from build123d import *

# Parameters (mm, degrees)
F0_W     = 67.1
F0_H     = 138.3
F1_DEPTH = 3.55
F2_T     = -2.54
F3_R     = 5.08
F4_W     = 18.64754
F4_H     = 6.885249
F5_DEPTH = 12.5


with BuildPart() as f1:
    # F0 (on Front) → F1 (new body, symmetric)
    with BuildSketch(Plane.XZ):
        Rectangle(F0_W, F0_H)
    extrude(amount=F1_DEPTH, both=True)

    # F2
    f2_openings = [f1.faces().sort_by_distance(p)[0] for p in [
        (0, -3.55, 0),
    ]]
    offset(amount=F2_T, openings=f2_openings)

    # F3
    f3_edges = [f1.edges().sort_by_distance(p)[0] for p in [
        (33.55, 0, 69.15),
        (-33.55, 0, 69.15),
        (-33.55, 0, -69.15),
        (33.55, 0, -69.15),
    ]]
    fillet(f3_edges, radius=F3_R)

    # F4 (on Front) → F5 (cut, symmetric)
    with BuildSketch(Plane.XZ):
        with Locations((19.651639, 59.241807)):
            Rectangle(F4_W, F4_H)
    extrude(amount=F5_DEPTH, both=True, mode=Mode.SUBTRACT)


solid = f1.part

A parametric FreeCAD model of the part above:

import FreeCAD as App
import Part
import Sketcher
from FreeCAD import Vector
Q = App.Units.Quantity


def edges_at(feature, points):
    """Names of the edges that pass closest to the given points."""
    edges = feature.Shape.Edges
    near = lambda p: min(range(len(edges)), key=lambda i: edges[i].distToShape(Part.Vertex(*p))[0])
    return sorted({f"Edge{near(p) + 1}" for p in points})


def faces_at(feature, points):
    """Names of the faces that lie closest to the given points."""
    faces = feature.Shape.Faces
    near = lambda p: min(range(len(faces)), key=lambda i: faces[i].distToShape(Part.Vertex(*p))[0])
    return sorted({f"Face{near(p) + 1}" for p in points})

doc = App.newDocument("Part")
body = doc.addObject("PartDesign::Body", "Body")

# Sketch on XZ plane
sketch1 = doc.addObject("Sketcher::SketchObject", "Sketch")
body.addObject(sketch1)
sketch1.AttachmentSupport = (doc.XZ_Plane, [""])
sketch1.MapMode = "FlatFace"
sketch1.addGeometry([
    Part.LineSegment(Vector(-34, 69, 0), Vector(-34, -69, 0)),
    Part.LineSegment(Vector(-34, -69, 0), Vector(34, -69, 0)),
    Part.LineSegment(Vector(34, -69, 0), Vector(34, 69, 0)),
    Part.LineSegment(Vector(34, 69, 0), Vector(-34, 69, 0)),
], False)
sketch1.addConstraint([
    Sketcher.Constraint("Coincident", 0, 2, 1, 1),
    Sketcher.Constraint("Coincident", 1, 2, 2, 1),
    Sketcher.Constraint("Coincident", 2, 2, 3, 1),
    Sketcher.Constraint("Coincident", 3, 2, 0, 1),
    Sketcher.Constraint("Vertical", 0),
    Sketcher.Constraint("Horizontal", 1),
    Sketcher.Constraint("Vertical", 2),
    Sketcher.Constraint("Horizontal", 3),
    Sketcher.Constraint("Symmetric", 0, 2, 2, 2, -1, 1),
    Sketcher.Constraint("DistanceX", 1, 1, 1, 2, Q("67.1 mm")),
    Sketcher.Constraint("DistanceY", 0, 2, 0, 1, Q("138.3 mm")),
])
pad1 = doc.addObject("PartDesign::Pad", "Pad")
body.addObject(pad1)
pad1.Profile = sketch1
pad1.Length = 7.1
pad1.Midplane = True
doc.recompute()

thickness = doc.addObject("PartDesign::Thickness", "Thickness")
body.addObject(thickness)
thickness.Base = (pad1, faces_at(pad1, [(0, -3.55, 0)]))
thickness.Value = 2.54
thickness.Reversed = True
thickness.Join = "Arc"
doc.recompute()

fillet = doc.addObject("PartDesign::Fillet", "Fillet")
body.addObject(fillet)
fillet.Base = (thickness, edges_at(thickness, [
    (33.55, 0, 69.15),
    (-33.55, 0, 69.15),
    (-33.55, 0, -69.15),
    (33.55, 0, -69.15),
]))
fillet.Radius = 5.08

# Sketch on XZ plane
sketch2 = doc.addObject("Sketcher::SketchObject", "Sketch001")
body.addObject(sketch2)
sketch2.AttachmentSupport = (doc.XZ_Plane, [""])
sketch2.MapMode = "FlatFace"
sketch2.addGeometry([
    Part.LineSegment(Vector(10, 63, 0), Vector(10, 56, 0)),
    Part.LineSegment(Vector(10, 56, 0), Vector(29, 56, 0)),
    Part.LineSegment(Vector(29, 56, 0), Vector(29, 63, 0)),
    Part.LineSegment(Vector(29, 63, 0), Vector(10, 63, 0)),
], False)
sketch2.addConstraint([
    Sketcher.Constraint("Coincident", 0, 2, 1, 1),
    Sketcher.Constraint("Coincident", 1, 2, 2, 1),
    Sketcher.Constraint("Coincident", 2, 2, 3, 1),
    Sketcher.Constraint("Coincident", 3, 2, 0, 1),
    Sketcher.Constraint("Vertical", 0),
    Sketcher.Constraint("Horizontal", 1),
    Sketcher.Constraint("Vertical", 2),
    Sketcher.Constraint("Horizontal", 3),
    Sketcher.Constraint("DistanceX", 1, 1, 1, 2, Q("18.64754 mm")),
    Sketcher.Constraint("DistanceY", 0, 2, 0, 1, Q("6.885249 mm")),
    Sketcher.Constraint("DistanceX", -1, 1, 0, 2, Q("10.327869 mm")),
    Sketcher.Constraint("DistanceY", -1, 1, 2, 2, Q("62.684432 mm")),
])
pocket1 = doc.addObject("PartDesign::Pocket", "Pocket")
body.addObject(pocket1)
pocket1.Profile = sketch2
pocket1.Length = 25
pocket1.Midplane = True

doc.recompute()
